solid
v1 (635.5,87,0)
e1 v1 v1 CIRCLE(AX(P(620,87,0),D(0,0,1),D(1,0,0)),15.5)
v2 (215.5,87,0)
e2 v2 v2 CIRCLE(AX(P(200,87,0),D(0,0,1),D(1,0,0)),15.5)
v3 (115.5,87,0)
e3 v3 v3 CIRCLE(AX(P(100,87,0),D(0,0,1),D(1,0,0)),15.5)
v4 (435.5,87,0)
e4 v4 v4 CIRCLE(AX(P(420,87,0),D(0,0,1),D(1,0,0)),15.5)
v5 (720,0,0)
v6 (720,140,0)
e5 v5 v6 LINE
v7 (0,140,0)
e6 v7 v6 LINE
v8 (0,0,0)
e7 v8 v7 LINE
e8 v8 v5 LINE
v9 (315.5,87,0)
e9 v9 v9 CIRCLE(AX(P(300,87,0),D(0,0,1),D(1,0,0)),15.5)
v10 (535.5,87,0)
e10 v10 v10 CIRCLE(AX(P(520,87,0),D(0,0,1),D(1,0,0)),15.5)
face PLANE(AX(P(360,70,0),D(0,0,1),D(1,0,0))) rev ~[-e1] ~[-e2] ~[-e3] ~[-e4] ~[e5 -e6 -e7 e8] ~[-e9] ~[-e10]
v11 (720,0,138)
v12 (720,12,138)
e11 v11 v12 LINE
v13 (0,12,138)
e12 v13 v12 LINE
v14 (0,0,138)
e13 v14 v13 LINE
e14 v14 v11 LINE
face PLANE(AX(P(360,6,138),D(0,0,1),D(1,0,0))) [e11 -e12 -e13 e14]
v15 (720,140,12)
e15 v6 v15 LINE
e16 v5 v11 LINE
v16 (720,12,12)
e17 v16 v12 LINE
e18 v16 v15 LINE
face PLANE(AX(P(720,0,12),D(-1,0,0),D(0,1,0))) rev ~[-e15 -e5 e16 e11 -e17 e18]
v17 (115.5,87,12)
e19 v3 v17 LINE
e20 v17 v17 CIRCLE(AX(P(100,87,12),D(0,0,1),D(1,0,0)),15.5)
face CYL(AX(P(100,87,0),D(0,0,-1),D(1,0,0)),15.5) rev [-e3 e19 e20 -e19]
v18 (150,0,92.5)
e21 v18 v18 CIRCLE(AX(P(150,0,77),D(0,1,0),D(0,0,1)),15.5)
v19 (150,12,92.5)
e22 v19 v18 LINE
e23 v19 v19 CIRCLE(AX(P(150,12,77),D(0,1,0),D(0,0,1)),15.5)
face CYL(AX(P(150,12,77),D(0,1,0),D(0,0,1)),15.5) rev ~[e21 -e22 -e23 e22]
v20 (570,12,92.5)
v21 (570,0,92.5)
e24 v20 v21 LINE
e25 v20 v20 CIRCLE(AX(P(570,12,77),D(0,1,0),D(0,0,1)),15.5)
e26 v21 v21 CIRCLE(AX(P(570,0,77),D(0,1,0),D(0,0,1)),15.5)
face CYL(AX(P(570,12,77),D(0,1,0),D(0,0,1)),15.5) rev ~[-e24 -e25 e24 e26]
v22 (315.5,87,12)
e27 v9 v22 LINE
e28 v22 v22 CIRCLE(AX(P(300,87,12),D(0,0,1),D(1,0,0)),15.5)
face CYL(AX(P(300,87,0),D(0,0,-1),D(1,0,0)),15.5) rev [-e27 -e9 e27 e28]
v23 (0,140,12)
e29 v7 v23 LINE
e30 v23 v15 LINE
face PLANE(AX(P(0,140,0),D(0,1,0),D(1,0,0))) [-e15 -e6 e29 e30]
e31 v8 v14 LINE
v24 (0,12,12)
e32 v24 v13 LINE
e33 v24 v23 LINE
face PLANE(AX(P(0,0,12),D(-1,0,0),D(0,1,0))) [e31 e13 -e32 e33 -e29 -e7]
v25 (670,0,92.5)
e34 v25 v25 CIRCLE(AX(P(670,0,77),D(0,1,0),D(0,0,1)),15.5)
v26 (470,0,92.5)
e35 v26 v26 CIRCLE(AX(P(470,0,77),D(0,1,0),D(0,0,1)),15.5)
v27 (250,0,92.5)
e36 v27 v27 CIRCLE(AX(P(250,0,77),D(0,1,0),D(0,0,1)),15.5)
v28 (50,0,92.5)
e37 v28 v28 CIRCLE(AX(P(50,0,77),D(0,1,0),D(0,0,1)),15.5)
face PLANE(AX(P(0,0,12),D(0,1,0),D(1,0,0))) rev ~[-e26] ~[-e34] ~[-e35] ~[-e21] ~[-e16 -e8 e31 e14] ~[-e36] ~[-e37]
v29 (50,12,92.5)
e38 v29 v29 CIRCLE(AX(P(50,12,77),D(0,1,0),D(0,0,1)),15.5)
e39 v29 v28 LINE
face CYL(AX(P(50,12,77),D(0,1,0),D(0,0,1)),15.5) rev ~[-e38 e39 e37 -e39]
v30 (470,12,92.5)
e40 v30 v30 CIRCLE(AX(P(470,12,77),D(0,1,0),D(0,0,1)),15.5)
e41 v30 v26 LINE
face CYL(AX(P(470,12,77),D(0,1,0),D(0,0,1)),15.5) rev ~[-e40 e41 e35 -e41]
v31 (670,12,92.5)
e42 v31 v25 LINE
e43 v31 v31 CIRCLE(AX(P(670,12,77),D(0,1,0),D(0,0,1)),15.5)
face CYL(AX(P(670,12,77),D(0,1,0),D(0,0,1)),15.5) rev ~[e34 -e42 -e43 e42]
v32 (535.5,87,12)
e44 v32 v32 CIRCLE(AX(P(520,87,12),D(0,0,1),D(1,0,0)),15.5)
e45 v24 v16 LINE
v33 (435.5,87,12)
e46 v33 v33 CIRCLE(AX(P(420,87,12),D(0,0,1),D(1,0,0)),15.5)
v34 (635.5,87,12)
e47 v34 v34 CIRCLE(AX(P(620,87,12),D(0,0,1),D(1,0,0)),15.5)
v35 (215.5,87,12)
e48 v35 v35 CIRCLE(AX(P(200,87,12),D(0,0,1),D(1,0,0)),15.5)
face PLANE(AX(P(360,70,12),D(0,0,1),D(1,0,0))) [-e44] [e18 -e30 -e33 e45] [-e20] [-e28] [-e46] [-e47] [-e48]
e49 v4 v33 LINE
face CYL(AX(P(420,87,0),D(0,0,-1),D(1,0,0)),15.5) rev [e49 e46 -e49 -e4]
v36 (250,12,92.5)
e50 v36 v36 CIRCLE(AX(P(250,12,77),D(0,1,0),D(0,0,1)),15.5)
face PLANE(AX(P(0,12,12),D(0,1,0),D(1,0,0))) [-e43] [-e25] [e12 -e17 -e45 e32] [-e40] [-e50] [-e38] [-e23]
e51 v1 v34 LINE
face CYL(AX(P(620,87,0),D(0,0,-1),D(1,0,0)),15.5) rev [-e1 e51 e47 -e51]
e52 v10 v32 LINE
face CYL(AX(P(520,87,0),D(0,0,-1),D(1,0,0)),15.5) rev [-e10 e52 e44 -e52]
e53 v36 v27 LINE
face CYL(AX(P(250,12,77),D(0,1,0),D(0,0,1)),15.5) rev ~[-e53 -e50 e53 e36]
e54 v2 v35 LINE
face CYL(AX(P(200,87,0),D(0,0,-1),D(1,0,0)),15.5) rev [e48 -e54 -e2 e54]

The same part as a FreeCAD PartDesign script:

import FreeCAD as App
import Part
import Sketcher


def add_polygon(sketch, points):
    """Adds a closed chain of lines whose ends are joined by coincident constraints."""
    first, n = sketch.GeometryCount, len(points)
    for a, b in zip(points, points[1:] + points[:1]):
        sketch.addGeometry(Part.LineSegment(App.Vector(*a, 0), App.Vector(*b, 0)), False)
    for i in range(n):
        sketch.addConstraint(Sketcher.Constraint("Coincident", first + i, 2, first + (i + 1) % n, 1))

doc = App.newDocument("Part")
body = doc.addObject("PartDesign::Body", "Body")

sketch1 = doc.addObject("Sketcher::SketchObject", "Sketch")
body.addObject(sketch1)
sketch1.AttachmentSupport = (doc.XY_Plane, [""])
sketch1.MapMode = "FlatFace"
add_polygon(sketch1, [(0, 140), (0, 0), (720, 0), (720, 140)])
sketch1.addGeometry(Part.Circle(App.Vector(100, 87, 0), App.Vector(0, 0, 1), 15.5), False)
sketch1.addGeometry(Part.Circle(App.Vector(200, 87, 0), App.Vector(0, 0, 1), 15.5), False)
sketch1.addGeometry(Part.Circle(App.Vector(300, 87, 0), App.Vector(0, 0, 1), 15.5), False)
sketch1.addGeometry(Part.Circle(App.Vector(420, 87, 0), App.Vector(0, 0, 1), 15.5), False)
sketch1.addGeometry(Part.Circle(App.Vector(520, 87, 0), App.Vector(0, 0, 1), 15.5), False)
sketch1.addGeometry(Part.Circle(App.Vector(620, 87, 0), App.Vector(0, 0, 1), 15.5), False)
sketch1.addConstraint([
    Sketcher.Constraint("Vertical", 0),
    Sketcher.Constraint("Horizontal", 1),
    Sketcher.Constraint("Vertical", 2),
    Sketcher.Constraint("Horizontal", 3),
    Sketcher.Constraint("Coincident", 0, 2, -1, 1),
    Sketcher.Constraint("Equal", 4, 5),
    Sketcher.Constraint("Equal", 5, 6),
    Sketcher.Constraint("Equal", 6, 7),
    Sketcher.Constraint("Equal", 7, 8),
    Sketcher.Constraint("Equal", 8, 9),
    Sketcher.Constraint("Horizontal", 4, 3, 5, 3),
    Sketcher.Constraint("Horizontal", 5, 3, 6, 3),
    Sketcher.Constraint("Horizontal", 6, 3, 7, 3),
    Sketcher.Constraint("Horizontal", 7, 3, 8, 3),
    Sketcher.Constraint("Horizontal", 8, 3, 9, 3),
    Sketcher.Constraint("Diameter", 4, 31.0),
    Sketcher.Constraint("DistanceX", 1, 1, 1, 2, 720.0),
    Sketcher.Constraint("DistanceY", 0, 2, 0, 1, 140.0),
    Sketcher.Constraint("DistanceX", -1, 1, 4, 3, 100.0),
    Sketcher.Constraint("DistanceY", -1, 1, 4, 3, 87.0),
    Sketcher.Constraint("DistanceX", -1, 1, 5, 3, 200.0),
    Sketcher.Constraint("DistanceX", -1, 1, 6, 3, 300.0),
    Sketcher.Constraint("DistanceX", -1, 1, 7, 3, 420.0),
    Sketcher.Constraint("DistanceX", -1, 1, 8, 3, 520.0),
    Sketcher.Constraint("DistanceX", -1, 1, 9, 3, 620.0),
])
pad1 = doc.addObject("PartDesign::Pad", "Pad")
body.addObject(pad1)
pad1.Profile = sketch1
pad1.Length = 12

sketch2 = doc.addObject("Sketcher::SketchObject", "Sketch001")
body.addObject(sketch2)
sketch2.AttachmentSupport = (doc.XY_Plane, [""])
sketch2.MapMode = "FlatFace"
sketch2.AttachmentOffset = App.Placement(App.Vector(0, 0, 12), App.Rotation())
add_polygon(sketch2, [(0, 12), (0, 0), (720, 0), (720, 12)])
sketch2.addConstraint([
    Sketcher.Constraint("Vertical", 0),
    Sketcher.Constraint("Horizontal", 1),
    Sketcher.Constraint("Vertical", 2),
    Sketcher.Constraint("Horizontal", 3),
    Sketcher.Constraint("Coincident", 0, 2, -1, 1),
    Sketcher.Constraint("DistanceX", 1, 1, 1, 2, 720.0),
    Sketcher.Constraint("DistanceY", 0, 2, 0, 1, 12.0),
])
pad2 = doc.addObject("PartDesign::Pad", "Pad001")
body.addObject(pad2)
pad2.Profile = sketch2
pad2.Length = 126

sketch3 = doc.addObject("Sketcher::SketchObject", "Sketch002")
body.addObject(sketch3)
sketch3.AttachmentSupport = (doc.XZ_Plane, [""])
sketch3.MapMode = "FlatFace"
sketch3.AttachmentOffset = App.Placement(App.Vector(0, 0, -12), App.Rotation())
sketch3.addGeometry([
    Part.Circle(App.Vector(50, 77, 0), App.Vector(0, 0, 1), 15.5),
    Part.Circle(App.Vector(150, 77, 0), App.Vector(0, 0, 1), 15.5),
    Part.Circle(App.Vector(250, 77, 0), App.Vector(0, 0, 1), 15.5),
    Part.Circle(App.Vector(670, 77, 0), App.Vector(0, 0, 1), 15.5),
    Part.Circle(App.Vector(470, 77, 0), App.Vector(0, 0, 1), 15.5),
    Part.Circle(App.Vector(570, 77, 0), App.Vector(0, 0, 1), 15.5),
], False)
sketch3.addConstraint([
    Sketcher.Constraint("Equal", 0, 1),
    Sketcher.Constraint("Equal", 1, 2),
    Sketcher.Constraint("Equal", 2, 3),
    Sketcher.Constraint("Equal", 3, 4),
    Sketcher.Constraint("Equal", 4, 5),
    Sketcher.Constraint("Horizontal", 0, 3, 1, 3),
    Sketcher.Constraint("Horizontal", 1, 3, 2, 3),
    Sketcher.Constraint("Horizontal", 2, 3, 3, 3),
    Sketcher.Constraint("Horizontal", 3, 3, 4, 3),
    Sketcher.Constraint("Horizontal", 4, 3, 5, 3),
    Sketcher.Constraint("Diameter", 0, 31.0),
    Sketcher.Constraint("DistanceX", -1, 1, 0, 3, 50.0),
    Sketcher.Constraint("DistanceY", -1, 1, 0, 3, 77.0),
    Sketcher.Constraint("DistanceX", -1, 1, 1, 3, 150.0),
    Sketcher.Constraint("DistanceX", -1, 1, 2, 3, 250.0),
    Sketcher.Constraint("DistanceX", -1, 1, 3, 3, 670.0),
    Sketcher.Constraint("DistanceX", -1, 1, 4, 3, 470.0),
    Sketcher.Constraint("DistanceX", -1, 1, 5, 3, 570.0),
])
pocket1 = doc.addObject("PartDesign::Pocket", "Pocket")
body.addObject(pocket1)
pocket1.Profile = sketch3
pocket1.Length = 168
pocket1.Reversed = True

doc.recompute()
